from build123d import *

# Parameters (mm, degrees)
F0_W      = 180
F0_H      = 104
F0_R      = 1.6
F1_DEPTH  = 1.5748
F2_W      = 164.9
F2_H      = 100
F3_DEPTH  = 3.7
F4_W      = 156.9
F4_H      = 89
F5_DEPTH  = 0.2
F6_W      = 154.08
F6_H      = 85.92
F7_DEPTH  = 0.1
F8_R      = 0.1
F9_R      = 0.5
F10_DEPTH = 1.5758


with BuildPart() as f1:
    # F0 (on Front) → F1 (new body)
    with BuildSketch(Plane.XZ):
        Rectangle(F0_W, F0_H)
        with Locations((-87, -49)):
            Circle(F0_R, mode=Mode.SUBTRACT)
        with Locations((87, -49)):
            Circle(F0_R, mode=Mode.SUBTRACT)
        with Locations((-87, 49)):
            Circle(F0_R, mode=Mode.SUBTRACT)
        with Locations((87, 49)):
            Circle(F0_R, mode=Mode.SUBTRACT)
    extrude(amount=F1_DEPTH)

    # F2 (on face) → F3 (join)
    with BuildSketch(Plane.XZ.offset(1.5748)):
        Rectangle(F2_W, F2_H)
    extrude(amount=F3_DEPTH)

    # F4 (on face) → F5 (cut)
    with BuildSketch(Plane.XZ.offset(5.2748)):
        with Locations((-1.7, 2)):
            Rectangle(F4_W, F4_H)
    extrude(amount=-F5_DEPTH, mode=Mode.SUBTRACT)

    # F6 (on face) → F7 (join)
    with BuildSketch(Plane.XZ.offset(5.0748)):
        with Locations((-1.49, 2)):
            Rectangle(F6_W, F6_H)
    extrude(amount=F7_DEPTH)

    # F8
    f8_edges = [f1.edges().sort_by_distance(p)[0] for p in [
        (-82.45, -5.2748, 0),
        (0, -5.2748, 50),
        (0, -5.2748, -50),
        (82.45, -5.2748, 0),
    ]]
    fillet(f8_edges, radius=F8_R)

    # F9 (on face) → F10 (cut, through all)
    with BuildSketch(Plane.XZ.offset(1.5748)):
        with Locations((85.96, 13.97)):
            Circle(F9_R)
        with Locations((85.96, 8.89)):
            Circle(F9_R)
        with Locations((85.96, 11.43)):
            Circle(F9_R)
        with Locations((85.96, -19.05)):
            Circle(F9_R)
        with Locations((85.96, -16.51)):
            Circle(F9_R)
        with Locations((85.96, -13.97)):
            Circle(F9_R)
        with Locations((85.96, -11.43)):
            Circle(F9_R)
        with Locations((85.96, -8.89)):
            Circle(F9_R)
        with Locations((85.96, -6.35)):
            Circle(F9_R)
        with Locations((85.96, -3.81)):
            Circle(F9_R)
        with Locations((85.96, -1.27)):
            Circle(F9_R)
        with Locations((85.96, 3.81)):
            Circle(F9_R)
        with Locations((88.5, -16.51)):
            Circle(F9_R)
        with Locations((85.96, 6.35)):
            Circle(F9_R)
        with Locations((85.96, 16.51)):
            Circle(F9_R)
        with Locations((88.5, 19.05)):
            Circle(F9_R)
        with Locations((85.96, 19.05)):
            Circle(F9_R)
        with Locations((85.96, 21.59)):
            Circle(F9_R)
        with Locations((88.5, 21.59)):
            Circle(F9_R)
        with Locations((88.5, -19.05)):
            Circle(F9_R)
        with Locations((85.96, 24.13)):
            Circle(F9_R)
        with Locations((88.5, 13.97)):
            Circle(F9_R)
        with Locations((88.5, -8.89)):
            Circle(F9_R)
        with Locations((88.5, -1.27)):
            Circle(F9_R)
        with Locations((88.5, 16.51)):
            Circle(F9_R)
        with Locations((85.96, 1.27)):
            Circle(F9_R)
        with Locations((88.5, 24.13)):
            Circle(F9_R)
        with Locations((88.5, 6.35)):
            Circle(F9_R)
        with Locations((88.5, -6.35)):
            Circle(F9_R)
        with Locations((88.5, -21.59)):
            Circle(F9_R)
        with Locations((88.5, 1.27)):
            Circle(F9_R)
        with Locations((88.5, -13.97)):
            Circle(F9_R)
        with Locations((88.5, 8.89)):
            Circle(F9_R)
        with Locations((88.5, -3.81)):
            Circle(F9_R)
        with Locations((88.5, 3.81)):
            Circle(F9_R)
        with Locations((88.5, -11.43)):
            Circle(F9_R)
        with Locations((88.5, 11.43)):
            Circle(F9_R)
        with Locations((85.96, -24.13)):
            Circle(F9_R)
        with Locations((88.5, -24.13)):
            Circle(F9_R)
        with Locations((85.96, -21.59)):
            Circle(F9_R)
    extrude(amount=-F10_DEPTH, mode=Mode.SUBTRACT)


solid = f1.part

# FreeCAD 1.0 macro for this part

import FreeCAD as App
import Part
import Sketcher
from FreeCAD import Vector
Q = App.Units.Quantity


def edges_at(feature, points):
    """Names of the edges that pass closest to the given points."""
    edges = feature.Shape.Edges
    near = lambda p: min(range(len(edges)), key=lambda i: edges[i].distToShape(Part.Vertex(*p))[0])
    return sorted({f"Edge{near(p) + 1}" for p in points})

doc = App.newDocument("Part")
body = doc.addObject("PartDesign::Body", "Body")

# Sketch on XZ plane
sketch1 = doc.addObject("Sketcher::SketchObject", "Sketch")
body.addObject(sketch1)
sketch1.AttachmentSupport = (doc.XZ_Plane, [""])
sketch1.MapMode = "FlatFace"
sketch1.addGeometry([
    Part.LineSegment(Vector(-90, 52, 0), Vector(-90, -52, 0)),  # 0
    Part.LineSegment(Vector(-90, -52, 0), Vector(90, -52, 0)),  # 1
    Part.LineSegment(Vector(90, -52, 0), Vector(90, 52, 0)),  # 2
    Part.LineSegment(Vector(90, 52, 0), Vector(-90, 52, 0)),  # 3
    Part.Circle(Vector(-87, -49, 0), Vector(0, 0, 1), 1.6),  # 4
    Part.Circle(Vector(87, -49, 0), Vector(0, 0, 1), 1.6),  # 5
    Part.Circle(Vector(-87, 49, 0), Vector(0, 0, 1), 1.6),  # 6
    Part.Circle(Vector(87, 49, 0), Vector(0, 0, 1), 1.6),  # 7
], False)
sketch1.addConstraint([
    Sketcher.Constraint("Coincident", 0, 2, 1, 1),
    Sketcher.Constraint("Coincident", 1, 2, 2, 1),
    Sketcher.Constraint("Coincident", 2, 2, 3, 1),
    Sketcher.Constraint("Coincident", 3, 2, 0, 1),
    Sketcher.Constraint("Vertical", 0),
    Sketcher.Constraint("Horizontal", 1),
    Sketcher.Constraint("Vertical", 2),
    Sketcher.Constraint("Horizontal", 3),
    Sketcher.Constraint("Equal", 4, 5),
    Sketcher.Constraint("Equal", 5, 6),
    Sketcher.Constraint("Equal", 6, 7),
    Sketcher.Constraint("Symmetric", 5, 3, 6, 3, -1, 1),
    Sketcher.Constraint("Symmetric", 4, 3, 7, 3, -1, 1),
    Sketcher.Constraint("Symmetric", 0, 2, 2, 2, -1, 1),
    Sketcher.Constraint("Symmetric", 4, 3, 5, 3, -2),
    Sketcher.Constraint("Diameter", 4, Q("3.2 mm")),
    Sketcher.Constraint("DistanceX", 1, 1, 1, 2, Q("180 mm")),
    Sketcher.Constraint("DistanceY", 0, 2, 0, 1, Q("104 mm")),
    Sketcher.Constraint("DistanceX", 4, 3, -1, 1, Q("87 mm")),
    Sketcher.Constraint("DistanceY", 4, 3, -1, 1, Q("49 mm")),
])
pad1 = doc.addObject("PartDesign::Pad", "Pad")
body.addObject(pad1)
pad1.Profile = sketch1
pad1.Length = 1.5748

# Sketch on XZ plane
sketch2 = doc.addObject("Sketcher::SketchObject", "Sketch001")
body.addObject(sketch2)
sketch2.AttachmentSupport = (doc.XZ_Plane, [""])
sketch2.MapMode = "FlatFace"
sketch2.AttachmentOffset = App.Placement(Vector(0, 0, 1.5748), App.Rotation())
sketch2.addGeometry([
    Part.LineSegment(Vector(-82.45, 50, 0), Vector(-82.45, -50, 0)),
    Part.LineSegment(Vector(-82.45, -50, 0), Vector(82.45, -50, 0)),
    Part.LineSegment(Vector(82.45, -50, 0), Vector(82.45, 50, 0)),
    Part.LineSegment(Vector(82.45, 50, 0), Vector(-82.45, 50, 0)),
], False)
sketch2.addConstraint([
    Sketcher.Constraint("Coincident", 0, 2, 1, 1),
    Sketcher.Constraint("Coincident", 1, 2, 2, 1),
    Sketcher.Constraint("Coincident", 2, 2, 3, 1),
    Sketcher.Constraint("Coincident", 3, 2, 0, 1),
    Sketcher.Constraint("Vertical", 0),
    Sketcher.Constraint("Horizontal", 1),
    Sketcher.Constraint("Vertical", 2),
    Sketcher.Constraint("Horizontal", 3),
    Sketcher.Constraint("Symmetric", 0, 2, 2, 2, -1, 1),
    Sketcher.Constraint("DistanceY", 0, 2, 0, 1, Q("100 mm")),
    Sketcher.Constraint("DistanceX", 1, 1, 1, 2, Q("164.9 mm")),
])
pad2 = doc.addObject("PartDesign::Pad", "Pad001")
body.addObject(pad2)
pad2.Profile = sketch2
pad2.Length = 3.7

# Sketch on XZ plane
sketch3 = doc.addObject("Sketcher::SketchObject", "Sketch002")
body.addObject(sketch3)
sketch3.AttachmentSupport = (doc.XZ_Plane, [""])
sketch3.MapMode = "FlatFace"
sketch3.AttachmentOffset = App.Placement(Vector(0, 0, 5.2748), App.Rotation())
sketch3.addGeometry([
    Part.LineSegment(Vector(-80.15, 46.5, 0), Vector(-80.15, -42.5, 0)),
    Part.LineSegment(Vector(-80.15, -42.5, 0), Vector(76.75, -42.5, 0)),
    Part.LineSegment(Vector(76.75, -42.5, 0), Vector(76.75, 46.5, 0)),
    Part.LineSegment(Vector(76.75, 46.5, 0), Vector(-80.15, 46.5, 0)),
], False)
sketch3.addConstraint([
    Sketcher.Constraint("Coincident", 0, 2, 1, 1),
    Sketcher.Constraint("Coincident", 1, 2, 2, 1),
    Sketcher.Constraint("Coincident", 2, 2, 3, 1),
    Sketcher.Constraint("Coincident", 3, 2, 0, 1),
    Sketcher.Constraint("Vertical", 0),
    Sketcher.Constraint("Horizontal", 1),
    Sketcher.Constraint("Vertical", 2),
    Sketcher.Constraint("Horizontal", 3),
    Sketcher.Constraint("DistanceY", 0, 2, 0, 1, Q("89 mm")),
    Sketcher.Constraint("DistanceX", 1, 1, 1, 2, Q("156.9 mm")),
    Sketcher.Constraint("DistanceY", 0, 2, -1, 1, Q("42.5 mm")),
    Sketcher.Constraint("DistanceX", 0, 2, -1, 1, Q("80.15 mm")),
])
pocket1 = doc.addObject("PartDesign::Pocket", "Pocket")
body.addObject(pocket1)
pocket1.Profile = sketch3
pocket1.Length = 0.2

# Sketch on XZ plane
sketch4 = doc.addObject("Sketcher::SketchObject", "Sketch003")
body.addObject(sketch4)
sketch4.AttachmentSupport = (doc.XZ_Plane, [""])
sketch4.MapMode = "FlatFace"
sketch4.AttachmentOffset = App.Placement(Vector(0, 0, 5.0748), App.Rotation())
sketch4.addGeometry([
    Part.LineSegment(Vector(-78.53, 44.96, 0), Vector(-78.53, -40.96, 0)),
    Part.LineSegment(Vector(-78.53, -40.96, 0), Vector(75.55, -40.96, 0)),
    Part.LineSegment(Vector(75.55, -40.96, 0), Vector(75.55, 44.96, 0)),
    Part.LineSegment(Vector(75.55, 44.96, 0), Vector(-78.53, 44.96, 0)),
], False)
sketch4.addConstraint([
    Sketcher.Constraint("Coincident", 0, 2, 1, 1),
    Sketcher.Constraint("Coincident", 1, 2, 2, 1),
    Sketcher.Constraint("Coincident", 2, 2, 3, 1),
    Sketcher.Constraint("Coincident", 3, 2, 0, 1),
    Sketcher.Constraint("Vertical", 0),
    Sketcher.Constraint("Horizontal", 1),
    Sketcher.Constraint("Vertical", 2),
    Sketcher.Constraint("Horizontal", 3),
    Sketcher.Constraint("DistanceX", 1, 1, 1, 2, Q("154.08 mm")),
    Sketcher.Constraint("DistanceY", 0, 2, 0, 1, Q("85.92 mm")),
    Sketcher.Constraint("DistanceX", 0, 2, -1, 1, Q("78.53 mm")),
    Sketcher.Constraint("DistanceY", 0, 2, -1, 1, Q("40.96 mm")),
])
pad3 = doc.addObject("PartDesign::Pad", "Pad002")
body.addObject(pad3)
pad3.Profile = sketch4
pad3.Length = 0.1
doc.recompute()

fillet = doc.addObject("PartDesign::Fillet", "Fillet")
body.addObject(fillet)
fillet.Base = (pad3, edges_at(pad3, [
    (-82.45, -5.275, 0),
    (0, -5.275, 50),
    (0, -5.275, -50),
    (82.45, -5.275, 0),
]))
fillet.Radius = 0.1

# Sketch on XZ plane
sketch5 = doc.addObject("Sketcher::SketchObject", "Sketch004")
body.addObject(sketch5)
sketch5.AttachmentSupport = (doc.XZ_Plane, [""])
sketch5.MapMode = "FlatFace"
sketch5.AttachmentOffset = App.Placement(Vector(0, 0, 1.5748), App.Rotation())
sketch5.addGeometry([
    Part.Circle(Vector(85.96, 13.97, 0), Vector(0, 0, 1), 0.5),  # 0
    Part.Circle(Vector(85.96, 8.89, 0), Vector(0, 0, 1), 0.5),  # 1
    Part.Circle(Vector(85.96, 11.43, 0), Vector(0, 0, 1), 0.5),  # 2
    Part.Circle(Vector(85.96, -19.05, 0), Vector(0, 0, 1), 0.5),  # 3
    Part.Circle(Vector(85.96, -16.51, 0), Vector(0, 0, 1), 0.5),  # 4
    Part.Circle(Vector(85.96, -13.97, 0), Vector(0, 0, 1), 0.5),  # 5
    Part.Circle(Vector(85.96, -11.43, 0), Vector(0, 0, 1), 0.5),  # 6
    Part.Circle(Vector(85.96, -8.89, 0), Vector(0, 0, 1), 0.5),  # 7
    Part.Circle(Vector(85.96, -6.35, 0), Vector(0, 0, 1), 0.5),  # 8
    Part.Circle(Vector(85.96, -3.81, 0), Vector(0, 0, 1), 0.5),  # 9
    Part.Circle(Vector(85.96, -1.27, 0), Vector(0, 0, 1), 0.5),  # 10
    Part.Circle(Vector(85.96, 3.81, 0), Vector(0, 0, 1), 0.5),  # 11
    Part.Circle(Vector(88.5, -16.51, 0), Vector(0, 0, 1), 0.5),  # 12
    Part.Circle(Vector(85.96, 6.35, 0), Vector(0, 0, 1), 0.5),  # 13
    Part.Circle(Vector(85.96, 16.51, 0), Vector(0, 0, 1), 0.5),  # 14
    Part.Circle(Vector(88.5, 19.05, 0), Vector(0, 0, 1), 0.5),  # 15
    Part.Circle(Vector(85.96, 19.05, 0), Vector(0, 0, 1), 0.5),  # 16
    Part.Circle(Vector(85.96, 21.59, 0), Vector(0, 0, 1), 0.5),  # 17
    Part.Circle(Vector(88.5, 21.59, 0), Vector(0, 0, 1), 0.5),  # 18
    Part.Circle(Vector(88.5, -19.05, 0), Vector(0, 0, 1), 0.5),  # 19
    Part.Circle(Vector(85.96, 24.13, 0), Vector(0, 0, 1), 0.5),  # 20
    Part.Circle(Vector(88.5, 13.97, 0), Vector(0, 0, 1), 0.5),  # 21
    Part.Circle(Vector(88.5, -8.89, 0), Vector(0, 0, 1), 0.5),  # 22
    Part.Circle(Vector(88.5, -1.27, 0), Vector(0, 0, 1), 0.5),  # 23
    Part.Circle(Vector(88.5, 16.51, 0), Vector(0, 0, 1), 0.5),  # 24
    Part.Circle(Vector(85.96, 1.27, 0), Vector(0, 0, 1), 0.5),  # 25
    Part.Circle(Vector(88.5, 24.13, 0), Vector(0, 0, 1), 0.5),  # 26
    Part.Circle(Vector(88.5, 6.35, 0), Vector(0, 0, 1), 0.5),  # 27
    Part.Circle(Vector(88.5, -6.35, 0), Vector(0, 0, 1), 0.5),  # 28
    Part.Circle(Vector(88.5, -21.59, 0), Vector(0, 0, 1), 0.5),  # 29
    Part.Circle(Vector(88.5, 1.27, 0), Vector(0, 0, 1), 0.5),  # 30
    Part.Circle(Vector(88.5, -13.97, 0), Vector(0, 0, 1), 0.5),  # 31
    Part.Circle(Vector(88.5, 8.89, 0), Vector(0, 0, 1), 0.5),  # 32
    Part.Circle(Vector(88.5, -3.81, 0), Vector(0, 0, 1), 0.5),  # 33
    Part.Circle(Vector(88.5, 3.81, 0), Vector(0, 0, 1), 0.5),  # 34
    Part.Circle(Vector(88.5, -11.43, 0), Vector(0, 0, 1), 0.5),  # 35
    Part.Circle(Vector(88.5, 11.43, 0), Vector(0, 0, 1), 0.5),  # 36
    Part.Circle(Vector(85.96, -24.13, 0), Vector(0, 0, 1), 0.5),  # 37
    Part.Circle(Vector(88.5, -24.13, 0), Vector(0, 0, 1), 0.5),  # 38
    Part.Circle(Vector(85.96, -21.59, 0), Vector(0, 0, 1), 0.5),  # 39
], False)
sketch5.addConstraint([
    Sketcher.Constraint("Equal", 0, 1),
    Sketcher.Constraint("Equal", 1, 2),
    Sketcher.Constraint("Equal", 2, 3),
    Sketcher.Constraint("Equal", 3, 4),
    Sketcher.Constraint("Equal", 4, 5),
    Sketcher.Constraint("Equal", 5, 6),
    Sketcher.Constraint("Equal", 6, 7),
    Sketcher.Constraint("Equal", 7, 8),
    Sketcher.Constraint("Equal", 8, 9),
    Sketcher.Constraint("Equal", 9, 10),
    Sketcher.Constraint("Equal", 10, 11),
    Sketcher.Constraint("Equal", 11, 12),
    Sketcher.Constraint("Equal", 12, 13),
    Sketcher.Constraint("Equal", 13, 14),
    Sketcher.Constraint("Equal", 14, 15),
    Sketcher.Constraint("Equal", 15, 16),
    Sketcher.Constraint("Equal", 16, 17),
    Sketcher.Constraint("Equal", 17, 18),
    Sketcher.Constraint("Equal", 18, 19),
    Sketcher.Constraint("Equal", 19, 20),
    Sketcher.Constraint("Equal", 20, 21),
    Sketcher.Constraint("Equal", 21, 22),
    Sketcher.Constraint("Equal", 22, 23),
    Sketcher.Constraint("Equal", 23, 24),
    Sketcher.Constraint("Equal", 24, 25),
    Sketcher.Constraint("Equal", 25, 26),
    Sketcher.Constraint("Equal", 26, 27),
    Sketcher.Constraint("Equal", 27, 28),
    Sketcher.Constraint("Equal", 28, 29),
    Sketcher.Constraint("Equal", 29, 30),
    Sketcher.Constraint("Equal", 30, 31),
    Sketcher.Constraint("Equal", 31, 32),
    Sketcher.Constraint("Equal", 32, 33),
    Sketcher.Constraint("Equal", 33, 34),
    Sketcher.Constraint("Equal", 34, 35),
    Sketcher.Constraint("Equal", 35, 36),
    Sketcher.Constraint("Equal", 36, 37),
    Sketcher.Constraint("Equal", 37, 38),
    Sketcher.Constraint("Equal", 38, 39),
    Sketcher.Constraint("Symmetric", 0, 3, 5, 3, -1),
    Sketcher.Constraint("Symmetric", 2, 3, 6, 3, -1),
    Sketcher.Constraint("Symmetric", 1, 3, 7, 3, -1),
    Sketcher.Constraint("Symmetric", 9, 3, 11, 3, -1),
    Sketcher.Constraint("Symmetric", 8, 3, 13, 3, -1),
    Sketcher.Constraint("Symmetric", 4, 3, 14, 3, -1),
    Sketcher.Constraint("Symmetric", 3, 3, 16, 3, -1),
    Sketcher.Constraint("Symmetric", 15, 3, 19, 3, -1),
    Sketcher.Constraint("Symmetric", 12, 3, 24, 3, -1),
    Sketcher.Constraint("Symmetric", 10, 3, 25, 3, -1),
    Sketcher.Constraint("Symmetric", 27, 3, 28, 3, -1),
    Sketcher.Constraint("Symmetric", 18, 3, 29, 3, -1),
    Sketcher.Constraint("Symmetric", 23, 3, 30, 3, -1),
    Sketcher.Constraint("Symmetric", 21, 3, 31, 3, -1),
    Sketcher.Constraint("Symmetric", 22, 3, 32, 3, -1),
    Sketcher.Constraint("Symmetric", 33, 3, 34, 3, -1),
    Sketcher.Constraint("Symmetric", 35, 3, 36, 3, -1),
    Sketcher.Constraint("Symmetric", 20, 3, 37, 3, -1),
    Sketcher.Constraint("Symmetric", 26, 3, 38, 3, -1),
    Sketcher.Constraint("Symmetric", 17, 3, 39, 3, -1),
    Sketcher.Constraint("Horizontal", 4, 3, 12, 3),
    Sketcher.Constraint("Horizontal", 15, 3, 16, 3),
    Sketcher.Constraint("Horizontal", 17, 3, 18, 3),
    Sketcher.Constraint("Horizontal", 0, 3, 21, 3),
    Sketcher.Constraint("Horizontal", 7, 3, 22, 3),
    Sketcher.Constraint("Horizontal", 10, 3, 23, 3),
    Sketcher.Constraint("Horizontal", 20, 3, 26, 3),
    Sketcher.Constraint("Horizontal", 13, 3, 27, 3),
    Sketcher.Constraint("Horizontal", 9, 3, 33, 3),
    Sketcher.Constraint("Horizontal", 6, 3, 35, 3),
    Sketcher.Constraint("Vertical", 0, 3, 1, 3),
    Sketcher.Constraint("Vertical", 1, 3, 2, 3),
    Sketcher.Constraint("Vertical", 2, 3, 3, 3),
    Sketcher.Constraint("Vertical", 3, 3, 4, 3),
    Sketcher.Constraint("Vertical", 7, 3, 8, 3),
    Sketcher.Constraint("Vertical", 8, 3, 9, 3),
    Sketcher.Constraint("Vertical", 9, 3, 10, 3),
    Sketcher.Constraint("Vertical", 12, 3, 15, 3),
    Sketcher.Constraint("Vertical", 16, 3, 17, 3),
    Sketcher.Constraint("Vertical", 15, 3, 18, 3),
    Sketcher.Constraint("Vertical", 17, 3, 20, 3),
    Sketcher.Constraint("Vertical", 19, 3, 21, 3),
    Sketcher.Constraint("Vertical", 21, 3, 22, 3),
    Sketcher.Constraint("Vertical", 22, 3, 23, 3),
    Sketcher.Constraint("Vertical", 24, 3, 26, 3),
    Sketcher.Constraint("Vertical", 26, 3, 27, 3),
    Sketcher.Constraint("Vertical", 32, 3, 33, 3),
    Sketcher.Constraint("Vertical", 34, 3, 35, 3),
    Sketcher.Constraint("Diameter", 0, Q("1 mm")),
    Sketcher.Constraint("DistanceX", -1, 1, 12, 3, Q("88.5 mm")),
    Sketcher.Constraint("DistanceY", 4, 3, 1, 3, Q("25.4 mm")),
    Sketcher.Constraint("DistanceY", 5, 3, 2, 3, Q("25.4 mm")),
    Sketcher.Constraint("DistanceY", 3, 3, 8, 3, Q("12.7 mm")),
    Sketcher.Constraint("DistanceY", 9, 3, 1, 3, Q("12.7 mm")),
    Sketcher.Constraint("DistanceX", -1, 1, 0, 3, Q("85.96 mm")),
    Sketcher.Constraint("DistanceY", -1, 1, 0, 3, Q("13.97 mm")),
    Sketcher.Constraint("DistanceY", -1, 1, 1, 3, Q("8.89 mm")),
    Sketcher.Constraint("DistanceY", 3, 3, -1, 1, Q("19.05 mm")),
    Sketcher.Constraint("DistanceY", 10, 3, -1, 1, Q("1.27 mm")),
    Sketcher.Constraint("DistanceY", -1, 1, 17, 3, Q("21.59 mm")),
    Sketcher.Constraint("DistanceY", -1, 1, 20, 3, Q("24.13 mm")),
])
pocket2 = doc.addObject("PartDesign::Pocket", "Pocket001")
body.addObject(pocket2)
pocket2.Profile = sketch5
pocket2.Type = "ThroughAll"

doc.recompute()
